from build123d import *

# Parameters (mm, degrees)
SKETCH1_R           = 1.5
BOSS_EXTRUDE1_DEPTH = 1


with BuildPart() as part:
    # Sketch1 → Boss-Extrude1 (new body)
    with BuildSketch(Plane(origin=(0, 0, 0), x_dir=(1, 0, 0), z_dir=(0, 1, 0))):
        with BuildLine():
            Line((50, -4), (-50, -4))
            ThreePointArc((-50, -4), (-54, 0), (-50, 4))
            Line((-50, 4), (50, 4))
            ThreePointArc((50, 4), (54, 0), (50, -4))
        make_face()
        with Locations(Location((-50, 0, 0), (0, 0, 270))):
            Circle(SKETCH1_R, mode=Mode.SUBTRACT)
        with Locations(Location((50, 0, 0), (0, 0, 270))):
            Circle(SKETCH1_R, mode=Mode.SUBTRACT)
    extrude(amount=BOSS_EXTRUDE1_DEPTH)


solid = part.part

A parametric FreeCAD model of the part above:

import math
import FreeCAD as App
import Part
import Sketcher
from FreeCAD import Vector
Q = App.Units.Quantity

doc = App.newDocument("Part")
body = doc.addObject("PartDesign::Body", "Body")

# Sketch on XZ plane
sketch1 = body.newObject("Sketcher::SketchObject", "Sketch")
sketch1.AttachmentSupport = (doc.getObject("XZ_Plane"), [""])
sketch1.MapMode = "FlatFace"
sketch1.addGeometry(Part.LineSegment(Vector(-50, 4, 0), Vector(50, 4, 0)), False)
sketch1.addGeometry(Part.ArcOfCircle(Part.Circle(Vector(50, 0, 0), Vector(0, 0, 1), 4), math.radians(-90), math.radians(90)), False)
sketch1.addGeometry(Part.LineSegment(Vector(50, -4, 0), Vector(-50, -4, 0)), False)
sketch1.addGeometry(Part.ArcOfCircle(Part.Circle(Vector(-50, 0, 0), Vector(0, 0, 1), 4), math.radians(90), math.radians(270)), False)
sketch1.addGeometry(Part.Circle(Vector(50, 0, 0), Vector(0, 0, 1), 1.5), False)
sketch1.addGeometry(Part.Circle(Vector(-50, 0, 0), Vector(0, 0, 1), 1.5), False)
sketch1.addConstraint(Sketcher.Constraint("Tangent", 0, 2, 1, 2))
sketch1.addConstraint(Sketcher.Constraint("Tangent", 1, 1, 2, 1))
sketch1.addConstraint(Sketcher.Constraint("Tangent", 2, 2, 3, 2))
sketch1.addConstraint(Sketcher.Constraint("Tangent", 3, 1, 0, 1))
sketch1.addConstraint(Sketcher.Constraint("Horizontal", 0))
sketch1.addConstraint(Sketcher.Constraint("Horizontal", 2))
sketch1.addConstraint(Sketcher.Constraint("Coincident", 4, 3, 1, 3))
sketch1.addConstraint(Sketcher.Constraint("Coincident", 5, 3, 3, 3))
sketch1.addConstraint(Sketcher.Constraint("Equal", 4, 5))
sketch1.addConstraint(Sketcher.Constraint("Symmetric", 1, 3, 3, 3, -1, 1))
sketch1.addConstraint(Sketcher.Constraint("Diameter", 4, Q("3 mm")))
sketch1.addConstraint(Sketcher.Constraint("Radius", 1, Q("4 mm")))
sketch1.addConstraint(Sketcher.Constraint("DistanceX", 0, 1, 0, 2, Q("100 mm")))
pad1 = body.newObject("PartDesign::Pad", "Pad")
pad1.Profile = sketch1
pad1.Length = 1
pad1.Reversed = True

doc.recompute()
